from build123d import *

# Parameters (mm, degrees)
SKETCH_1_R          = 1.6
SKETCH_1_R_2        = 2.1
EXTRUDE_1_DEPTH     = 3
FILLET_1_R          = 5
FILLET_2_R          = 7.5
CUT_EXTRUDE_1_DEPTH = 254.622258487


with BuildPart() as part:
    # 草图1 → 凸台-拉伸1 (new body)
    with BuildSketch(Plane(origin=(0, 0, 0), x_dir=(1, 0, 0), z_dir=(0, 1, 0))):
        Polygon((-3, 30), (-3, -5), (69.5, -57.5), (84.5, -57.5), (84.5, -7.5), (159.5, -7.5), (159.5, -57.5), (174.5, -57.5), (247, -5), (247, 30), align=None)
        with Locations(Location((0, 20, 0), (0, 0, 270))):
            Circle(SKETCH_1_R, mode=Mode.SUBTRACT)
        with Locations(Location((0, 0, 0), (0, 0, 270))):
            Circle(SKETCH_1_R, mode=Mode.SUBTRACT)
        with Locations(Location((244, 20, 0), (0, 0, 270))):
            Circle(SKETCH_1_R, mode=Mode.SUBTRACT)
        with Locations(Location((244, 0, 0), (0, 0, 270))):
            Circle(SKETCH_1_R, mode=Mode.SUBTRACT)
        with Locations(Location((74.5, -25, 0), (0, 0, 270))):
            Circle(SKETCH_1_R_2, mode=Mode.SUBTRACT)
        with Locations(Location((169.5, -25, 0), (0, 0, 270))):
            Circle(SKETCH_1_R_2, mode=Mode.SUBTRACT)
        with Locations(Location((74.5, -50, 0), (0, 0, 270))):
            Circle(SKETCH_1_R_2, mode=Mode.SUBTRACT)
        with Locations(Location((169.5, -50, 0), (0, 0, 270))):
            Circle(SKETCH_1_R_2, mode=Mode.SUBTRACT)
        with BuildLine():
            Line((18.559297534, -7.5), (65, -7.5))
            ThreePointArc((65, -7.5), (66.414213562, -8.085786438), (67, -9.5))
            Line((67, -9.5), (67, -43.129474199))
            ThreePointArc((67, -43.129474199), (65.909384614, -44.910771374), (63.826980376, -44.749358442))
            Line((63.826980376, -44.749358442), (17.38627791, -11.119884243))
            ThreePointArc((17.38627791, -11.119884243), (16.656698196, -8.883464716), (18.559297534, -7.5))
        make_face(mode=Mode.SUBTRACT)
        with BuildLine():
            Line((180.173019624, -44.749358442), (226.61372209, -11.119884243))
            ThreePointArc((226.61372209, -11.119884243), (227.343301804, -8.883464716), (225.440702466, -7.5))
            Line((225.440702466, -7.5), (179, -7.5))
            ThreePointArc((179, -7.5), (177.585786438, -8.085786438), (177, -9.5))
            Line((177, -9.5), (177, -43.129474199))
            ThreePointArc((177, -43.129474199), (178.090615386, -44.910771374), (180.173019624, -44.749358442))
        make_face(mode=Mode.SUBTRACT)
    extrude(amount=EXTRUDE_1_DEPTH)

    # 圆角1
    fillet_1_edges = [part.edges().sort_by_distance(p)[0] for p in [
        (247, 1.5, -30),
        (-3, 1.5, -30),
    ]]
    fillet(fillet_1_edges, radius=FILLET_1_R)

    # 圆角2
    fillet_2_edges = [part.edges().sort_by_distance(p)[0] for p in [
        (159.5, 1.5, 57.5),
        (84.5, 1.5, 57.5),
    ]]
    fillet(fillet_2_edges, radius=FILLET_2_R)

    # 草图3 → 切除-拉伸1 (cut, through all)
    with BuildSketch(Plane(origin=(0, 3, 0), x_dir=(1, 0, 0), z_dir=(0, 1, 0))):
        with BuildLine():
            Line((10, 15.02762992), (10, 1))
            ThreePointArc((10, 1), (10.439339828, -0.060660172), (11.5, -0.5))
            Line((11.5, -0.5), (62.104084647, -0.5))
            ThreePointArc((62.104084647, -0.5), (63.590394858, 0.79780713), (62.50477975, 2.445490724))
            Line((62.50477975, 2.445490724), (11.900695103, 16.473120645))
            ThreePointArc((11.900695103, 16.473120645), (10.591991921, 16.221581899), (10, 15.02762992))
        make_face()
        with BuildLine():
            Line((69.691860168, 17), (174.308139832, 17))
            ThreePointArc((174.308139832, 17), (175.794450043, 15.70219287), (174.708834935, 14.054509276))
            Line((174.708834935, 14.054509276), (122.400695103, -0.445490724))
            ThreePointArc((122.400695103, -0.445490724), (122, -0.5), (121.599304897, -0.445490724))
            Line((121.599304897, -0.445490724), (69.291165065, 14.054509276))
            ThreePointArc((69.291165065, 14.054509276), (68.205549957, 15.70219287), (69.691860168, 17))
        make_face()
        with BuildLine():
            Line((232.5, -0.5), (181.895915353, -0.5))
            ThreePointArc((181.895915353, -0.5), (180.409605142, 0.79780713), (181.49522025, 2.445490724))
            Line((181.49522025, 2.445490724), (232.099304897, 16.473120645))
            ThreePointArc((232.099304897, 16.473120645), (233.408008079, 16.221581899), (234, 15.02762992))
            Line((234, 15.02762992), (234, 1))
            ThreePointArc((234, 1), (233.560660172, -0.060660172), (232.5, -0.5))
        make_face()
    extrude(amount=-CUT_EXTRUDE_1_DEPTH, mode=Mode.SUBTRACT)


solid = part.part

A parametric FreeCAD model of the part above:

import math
import FreeCAD as App
import Part
import Sketcher

V = App.Vector
Q = App.Units.Quantity


def edges_at(feature, points):
    """Names of the edges that pass closest to the given points."""
    edges = feature.Shape.Edges
    near = lambda p: min(range(len(edges)), key=lambda i: edges[i].distToShape(Part.Vertex(*p))[0])
    return sorted({f"Edge{near(p) + 1}" for p in points})


def add_polygon(sketch, points):
    """Adds a closed chain of lines whose ends are joined by coincident constraints."""
    first, n = sketch.GeometryCount, len(points)
    for a, b in zip(points, points[1:] + points[:1]):
        sketch.addGeometry(Part.LineSegment(App.Vector(*a, 0), App.Vector(*b, 0)), False)
    for i in range(n):
        sketch.addConstraint(Sketcher.Constraint("Coincident", first + i, 2, first + (i + 1) % n, 1))

doc = App.newDocument("Part")
body = doc.addObject("PartDesign::Body", "Body")

# Sketch on XZ plane
sketch1 = doc.addObject("Sketcher::SketchObject", "Sketch")
body.addObject(sketch1)
sketch1.AttachmentSupport = (doc.XZ_Plane, [""])
sketch1.MapMode = "FlatFace"
add_polygon(sketch1, [(-3, -30), (-3, 5), (69.5, 57.5), (84.5, 57.5), (84.5, 7.5), (159.5, 7.5), (159.5, 57.5), (174.5, 57.5), (247, 5), (247, -30)])  # lines 0-9
sketch1.addGeometry(Part.Circle(V(74.5, 50, 0), V(0, 0, 1), 2.1), False)  # 10
sketch1.addGeometry(Part.ArcOfCircle(Part.Circle(V(18.6, 9.5, 0), V(0, 0, 1), 2), math.radians(126), math.radians(270)), False)  # 11
sketch1.addGeometry(Part.LineSegment(V(18.6, 7.5, 0), V(65, 7.5, 0)), False)  # 12
sketch1.addGeometry(Part.ArcOfCircle(Part.Circle(V(65, 9.5, 0), V(0, 0, 1), 2), math.radians(-90), math.radians(0)), False)  # 13
sketch1.addGeometry(Part.LineSegment(V(67, 9.5, 0), V(67, 43.1, 0)), False)  # 14
sketch1.addGeometry(Part.ArcOfCircle(Part.Circle(V(65, 43.1, 0), V(0, 0, 1), 2), math.radians(0), math.radians(126)), False)  # 15
sketch1.addGeometry(Part.LineSegment(V(63.8, 44.7, 0), V(17.4, 11.1, 0)), False)  # 16
sketch1.addGeometry(Part.Circle(V(74.5, 25, 0), V(0, 0, 1), 2.1), False)  # 17
sketch1.addGeometry(Part.Circle(V(169.5, 50, 0), V(0, 0, 1), 2.1), False)  # 18
sketch1.addGeometry(Part.Circle(V(169.5, 25, 0), V(0, 0, 1), 2.1), False)  # 19
sketch1.addGeometry(Part.LineSegment(V(226.6, 11.1, 0), V(180.2, 44.7, 0)), False)  # 20
sketch1.addGeometry(Part.ArcOfCircle(Part.Circle(V(179, 43.1, 0), V(0, 0, 1), 2), math.radians(54), math.radians(180)), False)  # 21
sketch1.addGeometry(Part.LineSegment(V(177, 43.1, 0), V(177, 9.5, 0)), False)  # 22
sketch1.addGeometry(Part.ArcOfCircle(Part.Circle(V(179, 9.5, 0), V(0, 0, 1), 2), math.radians(-180), math.radians(-90)), False)  # 23
sketch1.addGeometry(Part.LineSegment(V(179, 7.5, 0), V(225.4, 7.5, 0)), False)  # 24
sketch1.addGeometry(Part.ArcOfCircle(Part.Circle(V(225.4, 9.5, 0), V(0, 0, 1), 2), math.radians(-90), math.radians(54)), False)  # 25
sketch1.addGeometry(Part.Circle(V(0, 0, 0), V(0, 0, 1), 1.6), False)  # 26
sketch1.addGeometry(Part.Circle(V(0, -20, 0), V(0, 0, 1), 1.6), False)  # 27
sketch1.addGeometry(Part.Circle(V(244, 0, 0), V(0, 0, 1), 1.6), False)  # 28
sketch1.addGeometry(Part.Circle(V(244, -20, 0), V(0, 0, 1), 1.6), False)  # 29
sketch1.addConstraint([
    Sketcher.Constraint("Tangent", 11, 2, 12, 1),
    Sketcher.Constraint("Tangent", 12, 2, 13, 1),
    Sketcher.Constraint("Tangent", 13, 2, 14, 1),
    Sketcher.Constraint("Tangent", 14, 2, 15, 1),
    Sketcher.Constraint("Tangent", 15, 2, 16, 1),
    Sketcher.Constraint("Tangent", 16, 2, 11, 1),
    Sketcher.Constraint("Tangent", 20, 2, 21, 1),
    Sketcher.Constraint("Tangent", 21, 2, 22, 1),
    Sketcher.Constraint("Tangent", 22, 2, 23, 1),
    Sketcher.Constraint("Tangent", 23, 2, 24, 1),
    Sketcher.Constraint("Tangent", 24, 2, 25, 1),
    Sketcher.Constraint("Tangent", 25, 2, 20, 1),
    Sketcher.Constraint("Vertical", 0),
    Sketcher.Constraint("Horizontal", 2),
    Sketcher.Constraint("Vertical", 3),
    Sketcher.Constraint("Horizontal", 4),
    Sketcher.Constraint("Vertical", 5),
    Sketcher.Constraint("Horizontal", 6),
    Sketcher.Constraint("Vertical", 8),
    Sketcher.Constraint("Horizontal", 9),
    Sketcher.Constraint("Horizontal", 12),
    Sketcher.Constraint("Vertical", 14),
    Sketcher.Constraint("Vertical", 22),
    Sketcher.Constraint("Horizontal", 24),
    Sketcher.Constraint("Coincident", 26, 3, -1, 1),
    Sketcher.Constraint("Equal", 11, 13),
    Sketcher.Constraint("Equal", 13, 15),
    Sketcher.Constraint("Equal", 10, 17),
    Sketcher.Constraint("Equal", 17, 18),
    Sketcher.Constraint("Equal", 18, 19),
    Sketcher.Constraint("Equal", 15, 21),
    Sketcher.Constraint("Equal", 21, 23),
    Sketcher.Constraint("Equal", 23, 25),
    Sketcher.Constraint("Equal", 26, 27),
    Sketcher.Constraint("Equal", 27, 28),
    Sketcher.Constraint("Equal", 28, 29),
    Sketcher.Constraint("PointOnObject", 27, 3, -2),
    Sketcher.Constraint("PointOnObject", 28, 3, -1),
    Sketcher.Constraint("Parallel", 1, 16),
    Sketcher.Constraint("Parallel", 7, 20),
    Sketcher.Constraint("Horizontal", 10, 3, 18, 3),
    Sketcher.Constraint("Horizontal", 17, 3, 19, 3),
    Sketcher.Constraint("Horizontal", 15, 3, 21, 3),
    Sketcher.Constraint("Horizontal", 13, 3, 23, 3),
    Sketcher.Constraint("Horizontal", 27, 3, 29, 3),
    Sketcher.Constraint("Horizontal", 2, 2, 5, 2),
    Sketcher.Constraint("Horizontal", 0, 2, 7, 2),
    Sketcher.Constraint("Horizontal", 4, 2, 11, 2),
    Sketcher.Constraint("Horizontal", 15, 2, 20, 2),
    Sketcher.Constraint("Vertical", 10, 3, 17, 3),
    Sketcher.Constraint("Vertical", 18, 3, 19, 3),
    Sketcher.Constraint("Vertical", 28, 3, 29, 3),
    Sketcher.Constraint("Equal", 2, 6),
    Sketcher.Constraint("Radius", 11, Q("2 mm")),
    Sketcher.Constraint("Diameter", 10, Q("4.2 mm")),
    Sketcher.Constraint("Diameter", 26, Q("3.2 mm")),
    Sketcher.Constraint("DistanceX", 2, 1, 2, 2, Q("15 mm")),
    Sketcher.Constraint("DistanceX", 4, 1, 4, 2, Q("75 mm")),
    Sketcher.Constraint("DistanceX", 9, 2, 9, 1, Q("250 mm")),
    Sketcher.Constraint("DistanceY", 0, 1, 0, 2, Q("35 mm")),
    Sketcher.Constraint("DistanceY", 3, 2, 3, 1, Q("50 mm")),
    Sketcher.Constraint("DistanceY", -1, 1, 10, 3, Q("50 mm")),
    Sketcher.Constraint("DistanceX", -1, 1, 13, 3, Q("65 mm")),
    Sketcher.Constraint("DistanceY", -1, 1, 17, 3, Q("25 mm")),
    Sketcher.Constraint("DistanceX", -1, 1, 21, 3, Q("179 mm")),
    Sketcher.Constraint("DistanceY", 27, 3, -1, 1, Q("20 mm")),
    Sketcher.Constraint("DistanceX", -1, 1, 28, 3, Q("244 mm")),
    Sketcher.Constraint("DistanceX", 0, 2, -1, 1, Q("3 mm")),
    Sketcher.Constraint("DistanceY", -1, 1, 0, 2, Q("5 mm")),
    Sketcher.Constraint("DistanceX", 10, 3, 18, 3, Q("95 mm")),
    Sketcher.Constraint("DistanceX", 1, 2, 10, 3, Q("5 mm")),
    Sketcher.Constraint("DistanceY", -1, 1, 11, 3, Q("9.5 mm")),
    Sketcher.Constraint("DistanceX", 12, 1, 12, 2, Q("46.440702 mm")),
])
pad1 = doc.addObject("PartDesign::Pad", "Pad")
body.addObject(pad1)
pad1.Profile = sketch1
pad1.Length = 3
pad1.Reversed = True
doc.recompute()

fillet = doc.addObject("PartDesign::Fillet", "Fillet")
body.addObject(fillet)
fillet.Base = (pad1, edges_at(pad1, [(247, 1.5, -30), (-3, 1.5, -30)]))
fillet.Radius = 5
doc.recompute()

fillet2 = doc.addObject("PartDesign::Fillet", "Fillet001")
body.addObject(fillet2)
fillet2.Base = (fillet, edges_at(fillet, [(159.5, 1.5, 57.5), (84.5, 1.5, 57.5)]))
fillet2.Radius = 7.5

# Sketch on XZ plane
sketch2 = doc.addObject("Sketcher::SketchObject", "Sketch001")
body.addObject(sketch2)
sketch2.AttachmentSupport = (doc.XZ_Plane, [""])
sketch2.MapMode = "FlatFace"
sketch2.AttachmentOffset = App.Placement(V(0, 0, -3), App.Rotation())
sketch2.addGeometry([
    Part.LineSegment(V(10, -15, 0), V(10, -1, 0)),  # 0
    Part.ArcOfCircle(Part.Circle(V(11.5, -1, 0), V(0, 0, 1), 1.5), math.radians(90), math.radians(180)),  # 1
    Part.LineSegment(V(11.5, 0.5, 0), V(62.1, 0.5, 0)),  # 2
    Part.ArcOfCircle(Part.Circle(V(62.1, -1, 0), V(0, 0, 1), 1.5), math.radians(-75), math.radians(90)),  # 3
    Part.LineSegment(V(62.5, -2.4, 0), V(11.9, -16.5, 0)),  # 4
    Part.ArcOfCircle(Part.Circle(V(11.5, -15, 0), V(0, 0, 1), 1.5), math.radians(-180), math.radians(-75)),  # 5
    Part.LineSegment(V(174.3, -17, 0), V(69.7, -17, 0)),  # 6
    Part.ArcOfCircle(Part.Circle(V(69.7, -15.5, 0), V(0, 0, 1), 1.5), math.radians(105), math.radians(270)),  # 7
    Part.LineSegment(V(69.3, -14.1, 0), V(121.6, 0.4, 0)),  # 8
    Part.ArcOfCircle(Part.Circle(V(122, -1, 0), V(0, 0, 1), 1.5), math.radians(75), math.radians(105)),  # 9
    Part.LineSegment(V(122.4, 0.4, 0), V(174.7, -14.1, 0)),  # 10
    Part.ArcOfCircle(Part.Circle(V(174.3, -15.5, 0), V(0, 0, 1), 1.5), math.radians(-90), math.radians(75)),  # 11
    Part.LineSegment(V(181.9, 0.5, 0), V(232.5, 0.5, 0)),  # 12
    Part.ArcOfCircle(Part.Circle(V(232.5, -1, 0), V(0, 0, 1), 1.5), math.radians(0), math.radians(90)),  # 13
    Part.LineSegment(V(234, -1, 0), V(234, -15, 0)),  # 14
    Part.ArcOfCircle(Part.Circle(V(232.5, -15, 0), V(0, 0, 1), 1.5), math.radians(-105), math.radians(0)),  # 15
    Part.LineSegment(V(232.1, -16.5, 0), V(181.5, -2.4, 0)),  # 16
    Part.ArcOfCircle(Part.Circle(V(181.9, -1, 0), V(0, 0, 1), 1.5), math.radians(90), math.radians(255)),  # 17
], False)
sketch2.addConstraint([
    Sketcher.Constraint("Tangent", 0, 2, 1, 2),
    Sketcher.Constraint("Tangent", 1, 1, 2, 1),
    Sketcher.Constraint("Tangent", 2, 2, 3, 2),
    Sketcher.Constraint("Tangent", 3, 1, 4, 1),
    Sketcher.Constraint("Tangent", 4, 2, 5, 2),
    Sketcher.Constraint("Tangent", 5, 1, 0, 1),
    Sketcher.Constraint("Tangent", 6, 2, 7, 2),
    Sketcher.Constraint("Tangent", 7, 1, 8, 1),
    Sketcher.Constraint("Tangent", 8, 2, 9, 2),
    Sketcher.Constraint("Tangent", 9, 1, 10, 1),
    Sketcher.Constraint("Tangent", 10, 2, 11, 2),
    Sketcher.Constraint("Tangent", 11, 1, 6, 1),
    Sketcher.Constraint("Tangent", 12, 2, 13, 2),
    Sketcher.Constraint("Tangent", 13, 1, 14, 1),
    Sketcher.Constraint("Tangent", 14, 2, 15, 2),
    Sketcher.Constraint("Tangent", 15, 1, 16, 1),
    Sketcher.Constraint("Tangent", 16, 2, 17, 2),
    Sketcher.Constraint("Tangent", 17, 1, 12, 1),
    Sketcher.Constraint("Vertical", 0),
    Sketcher.Constraint("Horizontal", 2),
    Sketcher.Constraint("Horizontal", 6),
    Sketcher.Constraint("Horizontal", 12),
    Sketcher.Constraint("Vertical", 14),
    Sketcher.Constraint("Equal", 1, 3),
    Sketcher.Constraint("Equal", 3, 5),
    Sketcher.Constraint("Equal", 5, 7),
    Sketcher.Constraint("Equal", 7, 9),
    Sketcher.Constraint("Equal", 9, 11),
    Sketcher.Constraint("Equal", 11, 13),
    Sketcher.Constraint("Equal", 13, 15),
    Sketcher.Constraint("Equal", 15, 17),
    Sketcher.Constraint("Parallel", 4, 8),
    Sketcher.Constraint("Parallel", 10, 16),
    Sketcher.Constraint("Horizontal", 3, 3, 9, 3),
    Sketcher.Constraint("Horizontal", 9, 3, 13, 3),
    Sketcher.Constraint("Horizontal", 5, 3, 15, 3),
    Sketcher.Constraint("Equal", 2, 12),
    Sketcher.Constraint("Radius", 1, Q("1.5 mm")),
    Sketcher.Constraint("DistanceY", 1, 3, -1, 1, Q("1 mm")),
    Sketcher.Constraint("DistanceX", -1, 1, 9, 3, Q("122 mm")),
    Sketcher.Constraint("DistanceX", -1, 1, 0, 2, Q("10 mm")),
    Sketcher.Constraint("DistanceY", 6, 2, -1, 1, Q("17 mm")),
    Sketcher.Constraint("DistanceX", -1, 1, 13, 1, Q("234 mm")),
    Sketcher.Constraint("DistanceX", 6, 2, 6, 1, Q("104.61628 mm")),
    Sketcher.Constraint("DistanceY", 0, 1, 0, 2, Q("14.02763 mm")),
])
pocket1 = doc.addObject("PartDesign::Pocket", "Pocket")
body.addObject(pocket1)
pocket1.Profile = sketch2
pocket1.Type = "ThroughAll"
pocket1.Reversed = True

doc.recompute()
